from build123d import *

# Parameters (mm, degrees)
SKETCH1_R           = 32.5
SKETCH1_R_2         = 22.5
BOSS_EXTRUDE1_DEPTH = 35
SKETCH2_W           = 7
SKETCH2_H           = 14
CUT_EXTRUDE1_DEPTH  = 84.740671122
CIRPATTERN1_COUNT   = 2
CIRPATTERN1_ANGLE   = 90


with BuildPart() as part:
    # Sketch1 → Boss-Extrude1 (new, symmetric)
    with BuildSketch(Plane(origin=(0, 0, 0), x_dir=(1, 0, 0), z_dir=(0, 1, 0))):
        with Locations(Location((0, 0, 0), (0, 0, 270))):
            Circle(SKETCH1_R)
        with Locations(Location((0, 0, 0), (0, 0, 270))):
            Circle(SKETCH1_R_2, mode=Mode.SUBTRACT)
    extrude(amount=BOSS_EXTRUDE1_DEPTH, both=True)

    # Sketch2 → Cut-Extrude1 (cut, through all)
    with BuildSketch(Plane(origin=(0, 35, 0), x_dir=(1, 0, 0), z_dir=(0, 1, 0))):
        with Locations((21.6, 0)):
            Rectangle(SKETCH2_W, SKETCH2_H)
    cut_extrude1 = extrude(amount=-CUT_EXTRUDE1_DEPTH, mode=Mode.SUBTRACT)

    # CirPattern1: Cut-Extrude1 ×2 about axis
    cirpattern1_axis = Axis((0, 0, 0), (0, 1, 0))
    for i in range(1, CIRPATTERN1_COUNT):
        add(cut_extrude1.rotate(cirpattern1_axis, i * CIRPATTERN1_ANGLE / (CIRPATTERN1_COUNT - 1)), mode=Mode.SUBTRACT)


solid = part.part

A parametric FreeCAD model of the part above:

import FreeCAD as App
import Part
import Sketcher

V = App.Vector


def add_polygon(sketch, points):
    """Adds a closed chain of lines whose ends are joined by coincident constraints."""
    first, n = sketch.GeometryCount, len(points)
    for a, b in zip(points, points[1:] + points[:1]):
        sketch.addGeometry(Part.LineSegment(App.Vector(*a, 0), App.Vector(*b, 0)), False)
    for i in range(n):
        sketch.addConstraint(Sketcher.Constraint("Coincident", first + i, 2, first + (i + 1) % n, 1))

doc = App.newDocument("Part")
body = doc.addObject("PartDesign::Body", "Body")

sketch1 = doc.addObject("Sketcher::SketchObject", "Sketch")
body.addObject(sketch1)
sketch1.AttachmentSupport = (doc.XZ_Plane, [""])
sketch1.MapMode = "FlatFace"
sketch1.addGeometry([
    Part.Circle(V(0, 0, 0), V(0, 0, 1), 32.5),
    Part.Circle(V(0, 0, 0), V(0, 0, 1), 22.5),
], False)
sketch1.addConstraint([
    Sketcher.Constraint("Coincident", 0, 3, -1, 1),
    Sketcher.Constraint("Coincident", 1, 3, -1, 1),
    Sketcher.Constraint("Diameter", 0, 65.0),
    Sketcher.Constraint("Diameter", 1, 45.0),
])
pad1 = doc.addObject("PartDesign::Pad", "Pad")
body.addObject(pad1)
pad1.Profile = sketch1
pad1.Length = 70
pad1.Midplane = True

sketch2 = doc.addObject("Sketcher::SketchObject", "Sketch001")
body.addObject(sketch2)
sketch2.AttachmentSupport = (doc.XZ_Plane, [""])
sketch2.MapMode = "FlatFace"
sketch2.AttachmentOffset = App.Placement(V(0, 0, -35), App.Rotation())
add_polygon(sketch2, [(18.1, -7), (18.1, 7), (25.1, 7), (25.1, -7)])
sketch2.addConstraint([
    Sketcher.Constraint("Vertical", 0),
    Sketcher.Constraint("Horizontal", 1),
    Sketcher.Constraint("Vertical", 2),
    Sketcher.Constraint("Horizontal", 3),
    Sketcher.Constraint("DistanceX", 1, 1, 1, 2, 7.0),
    Sketcher.Constraint("DistanceY", 0, 1, 0, 2, 14.0),
    Sketcher.Constraint("DistanceY", -1, 1, 0, 2, 7.0),
    Sketcher.Constraint("DistanceX", -1, 1, 0, 2, 18.1),
])
pocket1 = doc.addObject("PartDesign::Pocket", "Pocket")
body.addObject(pocket1)
pocket1.Profile = sketch2
pocket1.Type = "ThroughAll"
pocket1.Reversed = True
doc.recompute()

polarpattern = doc.addObject("PartDesign::PolarPattern", "PolarPattern")
body.addObject(polarpattern)
polarpattern.Originals = [pocket1]
polarpattern.Axis = (doc.Y_Axis, [""])
polarpattern.Angle = 90
polarpattern.Occurrences = 2
body.Tip = polarpattern

doc.recompute()
